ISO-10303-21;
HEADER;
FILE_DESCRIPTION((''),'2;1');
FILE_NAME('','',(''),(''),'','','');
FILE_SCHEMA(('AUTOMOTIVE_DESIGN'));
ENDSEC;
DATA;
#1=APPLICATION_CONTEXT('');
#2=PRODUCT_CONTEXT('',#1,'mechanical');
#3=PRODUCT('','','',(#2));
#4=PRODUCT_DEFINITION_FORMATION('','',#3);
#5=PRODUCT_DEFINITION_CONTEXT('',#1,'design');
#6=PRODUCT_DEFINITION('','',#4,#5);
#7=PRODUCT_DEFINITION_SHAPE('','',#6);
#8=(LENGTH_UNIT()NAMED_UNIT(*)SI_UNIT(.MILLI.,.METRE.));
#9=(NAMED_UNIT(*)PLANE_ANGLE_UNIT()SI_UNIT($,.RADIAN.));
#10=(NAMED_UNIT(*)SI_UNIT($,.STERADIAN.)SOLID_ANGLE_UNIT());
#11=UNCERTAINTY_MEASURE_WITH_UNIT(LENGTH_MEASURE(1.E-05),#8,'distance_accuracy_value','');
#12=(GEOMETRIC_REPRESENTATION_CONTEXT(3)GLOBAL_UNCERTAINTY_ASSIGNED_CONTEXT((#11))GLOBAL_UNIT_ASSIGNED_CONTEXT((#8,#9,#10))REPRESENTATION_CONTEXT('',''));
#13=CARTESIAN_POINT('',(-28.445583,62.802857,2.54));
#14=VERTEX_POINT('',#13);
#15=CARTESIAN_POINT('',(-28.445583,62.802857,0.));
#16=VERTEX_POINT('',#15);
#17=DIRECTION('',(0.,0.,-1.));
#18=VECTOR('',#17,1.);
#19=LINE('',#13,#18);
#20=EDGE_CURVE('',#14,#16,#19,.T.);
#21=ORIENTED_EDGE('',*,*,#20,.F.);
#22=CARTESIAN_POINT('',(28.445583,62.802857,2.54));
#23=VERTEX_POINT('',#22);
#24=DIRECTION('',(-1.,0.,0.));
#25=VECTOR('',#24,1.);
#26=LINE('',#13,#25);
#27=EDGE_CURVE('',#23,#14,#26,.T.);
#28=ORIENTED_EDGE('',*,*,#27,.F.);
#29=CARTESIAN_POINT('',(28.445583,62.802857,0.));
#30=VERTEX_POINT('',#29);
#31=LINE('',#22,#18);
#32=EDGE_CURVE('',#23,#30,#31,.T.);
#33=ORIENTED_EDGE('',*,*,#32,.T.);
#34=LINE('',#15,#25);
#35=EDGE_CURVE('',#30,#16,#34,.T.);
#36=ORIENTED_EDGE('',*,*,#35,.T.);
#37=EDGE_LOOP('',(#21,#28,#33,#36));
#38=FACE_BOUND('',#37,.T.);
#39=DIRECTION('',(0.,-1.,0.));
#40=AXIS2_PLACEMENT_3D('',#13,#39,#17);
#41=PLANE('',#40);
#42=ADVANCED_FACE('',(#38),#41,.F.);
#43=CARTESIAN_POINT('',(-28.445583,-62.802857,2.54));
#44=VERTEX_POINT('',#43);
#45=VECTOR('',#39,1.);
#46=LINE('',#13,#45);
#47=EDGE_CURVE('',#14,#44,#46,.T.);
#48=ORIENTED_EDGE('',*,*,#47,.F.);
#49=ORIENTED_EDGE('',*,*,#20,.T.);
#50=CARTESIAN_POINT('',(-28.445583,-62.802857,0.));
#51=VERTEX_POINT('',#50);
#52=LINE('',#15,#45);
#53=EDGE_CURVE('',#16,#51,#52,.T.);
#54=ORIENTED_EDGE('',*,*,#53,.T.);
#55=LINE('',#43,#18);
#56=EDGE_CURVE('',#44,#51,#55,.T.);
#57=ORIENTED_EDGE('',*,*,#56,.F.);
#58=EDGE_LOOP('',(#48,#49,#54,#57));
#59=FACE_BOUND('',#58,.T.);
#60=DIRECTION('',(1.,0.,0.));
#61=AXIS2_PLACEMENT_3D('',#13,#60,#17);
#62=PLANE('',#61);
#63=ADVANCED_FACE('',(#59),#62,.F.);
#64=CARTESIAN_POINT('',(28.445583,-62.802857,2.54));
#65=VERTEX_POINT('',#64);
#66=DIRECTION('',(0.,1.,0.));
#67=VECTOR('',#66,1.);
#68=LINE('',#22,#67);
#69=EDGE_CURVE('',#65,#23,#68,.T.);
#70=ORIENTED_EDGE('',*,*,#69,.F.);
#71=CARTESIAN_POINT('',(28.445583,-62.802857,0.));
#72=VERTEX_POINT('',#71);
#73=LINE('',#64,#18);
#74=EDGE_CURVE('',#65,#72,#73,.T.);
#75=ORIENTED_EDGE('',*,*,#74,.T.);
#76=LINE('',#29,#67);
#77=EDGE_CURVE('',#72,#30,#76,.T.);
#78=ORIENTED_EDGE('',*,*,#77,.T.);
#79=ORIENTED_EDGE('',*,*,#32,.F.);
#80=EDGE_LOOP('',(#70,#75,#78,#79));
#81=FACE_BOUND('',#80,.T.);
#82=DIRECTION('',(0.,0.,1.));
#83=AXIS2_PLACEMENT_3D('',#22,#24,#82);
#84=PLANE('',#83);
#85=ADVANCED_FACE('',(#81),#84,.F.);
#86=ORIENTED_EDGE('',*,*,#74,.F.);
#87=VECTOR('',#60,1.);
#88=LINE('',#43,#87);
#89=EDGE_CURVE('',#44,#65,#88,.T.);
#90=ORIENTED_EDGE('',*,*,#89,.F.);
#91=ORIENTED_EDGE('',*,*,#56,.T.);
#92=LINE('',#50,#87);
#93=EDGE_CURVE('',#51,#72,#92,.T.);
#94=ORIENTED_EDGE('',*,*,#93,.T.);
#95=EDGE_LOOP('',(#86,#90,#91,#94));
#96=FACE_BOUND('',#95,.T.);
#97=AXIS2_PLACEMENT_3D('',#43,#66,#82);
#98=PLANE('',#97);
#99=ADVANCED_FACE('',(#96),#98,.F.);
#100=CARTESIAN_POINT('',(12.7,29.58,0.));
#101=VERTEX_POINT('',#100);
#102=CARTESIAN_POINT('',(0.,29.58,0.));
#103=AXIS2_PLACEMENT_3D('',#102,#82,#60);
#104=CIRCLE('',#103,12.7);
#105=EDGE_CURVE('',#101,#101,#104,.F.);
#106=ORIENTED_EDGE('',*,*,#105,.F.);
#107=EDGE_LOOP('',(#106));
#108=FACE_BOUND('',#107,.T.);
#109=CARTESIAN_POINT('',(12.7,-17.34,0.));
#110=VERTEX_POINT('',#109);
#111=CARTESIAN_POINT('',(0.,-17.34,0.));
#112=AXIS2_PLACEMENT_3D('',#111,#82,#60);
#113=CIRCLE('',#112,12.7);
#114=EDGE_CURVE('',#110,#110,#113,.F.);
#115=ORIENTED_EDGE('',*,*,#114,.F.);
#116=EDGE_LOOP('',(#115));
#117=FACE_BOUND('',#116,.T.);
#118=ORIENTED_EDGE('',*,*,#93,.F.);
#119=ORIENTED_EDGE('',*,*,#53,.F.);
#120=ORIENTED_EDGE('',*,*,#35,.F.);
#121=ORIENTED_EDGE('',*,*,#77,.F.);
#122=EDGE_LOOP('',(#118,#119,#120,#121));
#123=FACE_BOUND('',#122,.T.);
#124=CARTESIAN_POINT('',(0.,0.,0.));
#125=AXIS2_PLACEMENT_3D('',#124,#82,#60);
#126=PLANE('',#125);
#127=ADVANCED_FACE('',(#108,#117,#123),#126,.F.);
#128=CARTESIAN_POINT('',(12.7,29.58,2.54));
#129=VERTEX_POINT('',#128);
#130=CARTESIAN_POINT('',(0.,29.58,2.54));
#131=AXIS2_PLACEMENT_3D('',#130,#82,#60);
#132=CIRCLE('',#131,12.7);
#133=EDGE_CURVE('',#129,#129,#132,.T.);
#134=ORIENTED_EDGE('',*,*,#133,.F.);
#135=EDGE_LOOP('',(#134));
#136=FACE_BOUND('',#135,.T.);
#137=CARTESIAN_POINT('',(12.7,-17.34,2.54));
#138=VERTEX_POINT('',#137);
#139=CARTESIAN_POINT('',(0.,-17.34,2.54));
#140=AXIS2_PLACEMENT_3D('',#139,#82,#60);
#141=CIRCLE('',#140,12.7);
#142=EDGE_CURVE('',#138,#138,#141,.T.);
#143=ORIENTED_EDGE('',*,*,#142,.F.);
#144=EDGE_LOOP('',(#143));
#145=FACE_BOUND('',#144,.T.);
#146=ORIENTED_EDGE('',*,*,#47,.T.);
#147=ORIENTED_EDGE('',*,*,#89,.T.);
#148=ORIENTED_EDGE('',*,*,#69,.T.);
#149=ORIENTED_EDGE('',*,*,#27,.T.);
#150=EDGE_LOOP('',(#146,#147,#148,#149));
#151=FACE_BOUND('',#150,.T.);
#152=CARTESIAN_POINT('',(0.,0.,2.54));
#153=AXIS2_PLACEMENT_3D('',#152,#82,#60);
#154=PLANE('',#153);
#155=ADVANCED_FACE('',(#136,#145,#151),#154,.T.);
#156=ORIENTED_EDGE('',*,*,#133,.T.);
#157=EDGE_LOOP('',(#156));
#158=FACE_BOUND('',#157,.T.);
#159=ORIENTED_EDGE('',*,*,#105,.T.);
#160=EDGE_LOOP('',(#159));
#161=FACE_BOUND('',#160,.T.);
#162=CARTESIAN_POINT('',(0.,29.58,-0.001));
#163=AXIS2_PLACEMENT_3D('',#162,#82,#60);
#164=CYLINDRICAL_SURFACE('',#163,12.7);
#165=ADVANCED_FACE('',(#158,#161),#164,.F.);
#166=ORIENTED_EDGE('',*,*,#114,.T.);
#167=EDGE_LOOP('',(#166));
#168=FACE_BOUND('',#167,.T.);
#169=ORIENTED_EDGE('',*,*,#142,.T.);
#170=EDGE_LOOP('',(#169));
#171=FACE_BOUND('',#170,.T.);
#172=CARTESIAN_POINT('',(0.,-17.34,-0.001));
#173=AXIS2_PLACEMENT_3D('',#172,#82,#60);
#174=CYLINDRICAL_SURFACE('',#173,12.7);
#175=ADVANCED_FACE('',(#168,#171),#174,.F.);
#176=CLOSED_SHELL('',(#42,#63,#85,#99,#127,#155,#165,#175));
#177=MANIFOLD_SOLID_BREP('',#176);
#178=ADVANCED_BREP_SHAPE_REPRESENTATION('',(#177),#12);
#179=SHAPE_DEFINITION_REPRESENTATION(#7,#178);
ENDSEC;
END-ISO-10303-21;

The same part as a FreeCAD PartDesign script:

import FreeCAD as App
import Part
import Sketcher

V = App.Vector
Q = App.Units.Quantity


def add_polygon(sketch, points):
    """Adds a closed chain of lines whose ends are joined by coincident constraints."""
    first, n = sketch.GeometryCount, len(points)
    for a, b in zip(points, points[1:] + points[:1]):
        sketch.addGeometry(Part.LineSegment(App.Vector(*a, 0), App.Vector(*b, 0)), False)
    for i in range(n):
        sketch.addConstraint(Sketcher.Constraint("Coincident", first + i, 2, first + (i + 1) % n, 1))

doc = App.newDocument("Part")
body = doc.addObject("PartDesign::Body", "Body")

# Sketch on XY plane
sketch1 = doc.addObject("Sketcher::SketchObject", "Sketch")
body.addObject(sketch1)
sketch1.AttachmentSupport = (doc.XY_Plane, [""])
sketch1.MapMode = "FlatFace"
add_polygon(sketch1, [(-28, 63), (-28, -63), (28, -63), (28, 63)])  # lines 0-3
sketch1.addConstraint(Sketcher.Constraint("Vertical", 0))
sketch1.addConstraint(Sketcher.Constraint("Horizontal", 1))
sketch1.addConstraint(Sketcher.Constraint("Vertical", 2))
sketch1.addConstraint(Sketcher.Constraint("Horizontal", 3))
sketch1.addConstraint(Sketcher.Constraint("Symmetric", 0, 2, 2, 2, -1, 1))
sketch1.addConstraint(Sketcher.Constraint("DistanceX", 1, 1, 1, 2, Q("56.891165 mm")))
sketch1.addConstraint(Sketcher.Constraint("DistanceY", 0, 2, 0, 1, Q("125.605714 mm")))
pad1 = doc.addObject("PartDesign::Pad", "Pad")
body.addObject(pad1)
pad1.Profile = sketch1
pad1.Length = Q("0.1 in")

# Sketch on XY plane
sketch2 = doc.addObject("Sketcher::SketchObject", "Sketch001")
body.addObject(sketch2)
sketch2.AttachmentSupport = (doc.XY_Plane, [""])
sketch2.MapMode = "FlatFace"
sketch2.AttachmentOffset = App.Placement(V(0, 0, 0.1 * 25.4), App.Rotation())
sketch2.addGeometry(Part.Circle(V(0, 30, 0), V(0, 0, 1), 13), False)
sketch2.addConstraint(Sketcher.Constraint("PointOnObject", 0, 3, -2))
sketch2.addConstraint(Sketcher.Constraint("Diameter", 0, Q("1 in")))
sketch2.addConstraint(Sketcher.Constraint("DistanceY", -1, 1, 0, 3, Q("29.58 mm")))
pocket1 = doc.addObject("PartDesign::Pocket", "Pocket")
body.addObject(pocket1)
pocket1.Profile = sketch2
pocket1.Type = "UpToFirst"

# Sketch on XY plane
sketch3 = doc.addObject("Sketcher::SketchObject", "Sketch002")
body.addObject(sketch3)
sketch3.AttachmentSupport = (doc.XY_Plane, [""])
sketch3.MapMode = "FlatFace"
sketch3.AttachmentOffset = App.Placement(V(0, 0, 0.1 * 25.4), App.Rotation())
sketch3.addGeometry(Part.Circle(V(0, -17, 0), V(0, 0, 1), 13), False)
sketch3.addConstraint(Sketcher.Constraint("PointOnObject", 0, 3, -2))
sketch3.addConstraint(Sketcher.Constraint("Diameter", 0, Q("1 in")))
sketch3.addConstraint(Sketcher.Constraint("DistanceY", 0, 3, -1, 1, Q("17.34 mm")))
pocket2 = doc.addObject("PartDesign::Pocket", "Pocket001")
body.addObject(pocket2)
pocket2.Profile = sketch3
pocket2.Type = "UpToFirst"

doc.recompute()
